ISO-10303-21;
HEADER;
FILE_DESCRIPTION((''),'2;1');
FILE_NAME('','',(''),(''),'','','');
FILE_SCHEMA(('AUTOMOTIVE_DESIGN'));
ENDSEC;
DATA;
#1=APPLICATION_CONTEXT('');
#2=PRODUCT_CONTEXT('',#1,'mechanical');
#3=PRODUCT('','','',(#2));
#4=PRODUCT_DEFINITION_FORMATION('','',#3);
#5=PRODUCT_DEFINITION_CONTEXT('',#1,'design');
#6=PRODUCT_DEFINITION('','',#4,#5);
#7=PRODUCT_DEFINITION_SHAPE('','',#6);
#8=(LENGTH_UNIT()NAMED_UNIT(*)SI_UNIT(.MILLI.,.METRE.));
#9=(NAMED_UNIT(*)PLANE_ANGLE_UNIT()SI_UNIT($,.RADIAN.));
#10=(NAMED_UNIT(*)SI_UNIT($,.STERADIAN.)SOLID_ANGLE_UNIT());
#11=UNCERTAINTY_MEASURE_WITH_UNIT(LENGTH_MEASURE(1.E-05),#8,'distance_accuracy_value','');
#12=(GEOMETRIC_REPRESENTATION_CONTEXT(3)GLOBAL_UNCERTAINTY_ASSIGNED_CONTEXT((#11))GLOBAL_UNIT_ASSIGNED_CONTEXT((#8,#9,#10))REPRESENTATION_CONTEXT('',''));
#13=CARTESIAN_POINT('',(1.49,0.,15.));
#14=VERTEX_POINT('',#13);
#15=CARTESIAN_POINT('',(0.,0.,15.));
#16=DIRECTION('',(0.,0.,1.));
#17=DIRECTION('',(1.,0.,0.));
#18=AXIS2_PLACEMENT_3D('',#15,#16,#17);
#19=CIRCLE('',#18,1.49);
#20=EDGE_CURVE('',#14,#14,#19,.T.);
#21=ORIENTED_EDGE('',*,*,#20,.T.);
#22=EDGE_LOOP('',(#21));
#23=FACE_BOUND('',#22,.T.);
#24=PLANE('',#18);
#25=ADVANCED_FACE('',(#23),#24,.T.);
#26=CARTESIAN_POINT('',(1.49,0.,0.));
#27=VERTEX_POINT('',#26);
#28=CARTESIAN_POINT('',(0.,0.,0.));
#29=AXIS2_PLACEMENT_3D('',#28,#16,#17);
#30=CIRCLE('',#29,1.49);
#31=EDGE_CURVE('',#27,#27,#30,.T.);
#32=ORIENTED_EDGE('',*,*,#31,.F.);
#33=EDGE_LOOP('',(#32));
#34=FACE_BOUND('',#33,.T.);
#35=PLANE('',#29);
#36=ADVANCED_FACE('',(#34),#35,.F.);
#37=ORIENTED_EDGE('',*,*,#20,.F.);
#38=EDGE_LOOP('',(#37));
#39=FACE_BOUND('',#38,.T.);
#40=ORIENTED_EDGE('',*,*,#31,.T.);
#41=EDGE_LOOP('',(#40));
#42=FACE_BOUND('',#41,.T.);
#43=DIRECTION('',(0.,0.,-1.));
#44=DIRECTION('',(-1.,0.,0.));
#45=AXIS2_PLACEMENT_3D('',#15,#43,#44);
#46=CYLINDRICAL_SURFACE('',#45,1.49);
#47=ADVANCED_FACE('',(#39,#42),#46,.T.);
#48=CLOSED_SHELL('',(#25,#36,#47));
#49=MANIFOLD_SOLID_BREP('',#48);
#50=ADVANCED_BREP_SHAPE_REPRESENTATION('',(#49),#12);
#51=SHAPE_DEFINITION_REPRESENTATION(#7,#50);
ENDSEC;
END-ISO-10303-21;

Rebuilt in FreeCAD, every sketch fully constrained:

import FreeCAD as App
import Part
import Sketcher

V = App.Vector
Q = App.Units.Quantity

doc = App.newDocument("Part")
body = doc.addObject("PartDesign::Body", "Body")

# Sketch on XY plane
sketch1 = body.newObject("Sketcher::SketchObject", "Sketch")
sketch1.AttachmentSupport = (doc.getObject("XY_Plane"), [""])
sketch1.MapMode = "FlatFace"
sketch1.addGeometry(Part.Circle(V(0, 0, 0), V(0, 0, 1), 1.49), False)
sketch1.addConstraint(Sketcher.Constraint("Coincident", 0, 3, -1, 1))
sketch1.addConstraint(Sketcher.Constraint("Diameter", 0, Q("2.98 mm")))
pad1 = body.newObject("PartDesign::Pad", "Pad")
pad1.Profile = sketch1
pad1.Length = 15

doc.recompute()
